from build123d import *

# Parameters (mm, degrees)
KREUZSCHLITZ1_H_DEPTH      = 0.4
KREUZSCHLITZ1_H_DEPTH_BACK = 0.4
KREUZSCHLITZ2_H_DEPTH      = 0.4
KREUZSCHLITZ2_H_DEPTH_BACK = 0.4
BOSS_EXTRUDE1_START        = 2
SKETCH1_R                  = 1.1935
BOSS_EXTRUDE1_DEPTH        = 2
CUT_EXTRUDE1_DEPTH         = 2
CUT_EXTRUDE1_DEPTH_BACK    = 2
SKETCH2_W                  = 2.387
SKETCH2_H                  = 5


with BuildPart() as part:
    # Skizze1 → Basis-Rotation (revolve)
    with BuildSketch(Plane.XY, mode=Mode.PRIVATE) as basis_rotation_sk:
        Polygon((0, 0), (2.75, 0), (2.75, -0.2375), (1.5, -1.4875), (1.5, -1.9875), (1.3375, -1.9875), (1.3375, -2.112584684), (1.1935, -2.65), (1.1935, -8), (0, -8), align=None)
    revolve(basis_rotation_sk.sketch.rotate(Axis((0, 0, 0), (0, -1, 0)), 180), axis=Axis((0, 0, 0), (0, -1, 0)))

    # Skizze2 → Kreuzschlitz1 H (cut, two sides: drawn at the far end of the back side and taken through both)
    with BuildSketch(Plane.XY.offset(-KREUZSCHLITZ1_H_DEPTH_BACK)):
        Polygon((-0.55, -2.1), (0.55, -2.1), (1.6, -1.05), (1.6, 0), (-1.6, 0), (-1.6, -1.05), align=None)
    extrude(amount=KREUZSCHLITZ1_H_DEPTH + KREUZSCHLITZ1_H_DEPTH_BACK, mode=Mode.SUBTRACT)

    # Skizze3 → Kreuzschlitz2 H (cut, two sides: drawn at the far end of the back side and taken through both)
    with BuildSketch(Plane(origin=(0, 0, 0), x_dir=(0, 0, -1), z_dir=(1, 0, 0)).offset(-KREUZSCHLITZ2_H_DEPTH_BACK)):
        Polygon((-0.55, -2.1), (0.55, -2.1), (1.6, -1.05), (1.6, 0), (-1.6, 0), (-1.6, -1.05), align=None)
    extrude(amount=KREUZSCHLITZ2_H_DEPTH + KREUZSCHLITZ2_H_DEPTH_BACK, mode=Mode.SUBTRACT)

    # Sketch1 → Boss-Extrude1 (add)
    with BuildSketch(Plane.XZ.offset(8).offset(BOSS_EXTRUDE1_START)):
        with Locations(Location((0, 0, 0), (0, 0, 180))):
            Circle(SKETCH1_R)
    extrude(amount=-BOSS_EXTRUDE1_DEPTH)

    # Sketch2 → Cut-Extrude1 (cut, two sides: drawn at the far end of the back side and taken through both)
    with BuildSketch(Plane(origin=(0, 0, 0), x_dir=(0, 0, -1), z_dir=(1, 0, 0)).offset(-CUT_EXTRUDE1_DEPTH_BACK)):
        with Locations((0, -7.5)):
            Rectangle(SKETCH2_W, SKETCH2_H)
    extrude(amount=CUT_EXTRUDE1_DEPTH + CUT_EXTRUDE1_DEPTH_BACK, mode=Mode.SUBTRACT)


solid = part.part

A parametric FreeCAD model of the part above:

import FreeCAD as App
import Part
import Sketcher
Q = App.Units.Quantity

doc = App.newDocument("Part")
body = doc.addObject("PartDesign::Body", "Body")

sketch1 = doc.addObject("Sketcher::SketchObject", "Sketch")
body.addObject(sketch1)
sketch1.AttachmentSupport = (doc.XY_Plane, [""])
sketch1.MapMode = "FlatFace"
sketch1.addGeometry([
    Part.LineSegment(App.Vector(2.75, 0, 0), App.Vector(0, 0, 0)),
    Part.LineSegment(App.Vector(0, 0, 0), App.Vector(0, -8, 0)),
    Part.LineSegment(App.Vector(0, -8, 0), App.Vector(1.19, -8, 0)),
    Part.LineSegment(App.Vector(1.19, -8, 0), App.Vector(1.19, -2.65, 0)),
    Part.LineSegment(App.Vector(1.19, -2.65, 0), App.Vector(1.34, -2.11, 0)),
    Part.LineSegment(App.Vector(1.34, -2.11, 0), App.Vector(1.34, -1.99, 0)),
    Part.LineSegment(App.Vector(1.34, -1.99, 0), App.Vector(1.5, -1.99, 0)),
    Part.LineSegment(App.Vector(1.5, -1.99, 0), App.Vector(1.5, -1.49, 0)),
    Part.LineSegment(App.Vector(1.5, -1.49, 0), App.Vector(2.75, -0.24, 0)),
    Part.LineSegment(App.Vector(2.75, -0.24, 0), App.Vector(2.75, 0, 0)),
], False)
sketch1.addConstraint([
    Sketcher.Constraint("Coincident", 0, 2, 1, 1),
    Sketcher.Constraint("Coincident", 1, 2, 2, 1),
    Sketcher.Constraint("Coincident", 2, 2, 3, 1),
    Sketcher.Constraint("Coincident", 3, 2, 4, 1),
    Sketcher.Constraint("Coincident", 4, 2, 5, 1),
    Sketcher.Constraint("Coincident", 5, 2, 6, 1),
    Sketcher.Constraint("Coincident", 6, 2, 7, 1),
    Sketcher.Constraint("Coincident", 7, 2, 8, 1),
    Sketcher.Constraint("Coincident", 8, 2, 9, 1),
    Sketcher.Constraint("Coincident", 9, 2, 0, 1),
    Sketcher.Constraint("Horizontal", 0),
    Sketcher.Constraint("Vertical", 1),
    Sketcher.Constraint("Horizontal", 2),
    Sketcher.Constraint("Vertical", 3),
    Sketcher.Constraint("Vertical", 5),
    Sketcher.Constraint("Horizontal", 6),
    Sketcher.Constraint("Vertical", 7),
    Sketcher.Constraint("Vertical", 9),
    Sketcher.Constraint("Coincident", 0, 2, -1, 1),
    Sketcher.Constraint("DistanceY", 1, 2, 1, 1, Q("8 mm")),
    Sketcher.Constraint("Angle", 4, Q("75 deg")),
    Sketcher.Constraint("Angle", 8, Q("45 deg")),
    Sketcher.Constraint("DistanceY", 7, 1, 7, 2, Q("0.5 mm")),
    Sketcher.Constraint("DistanceX", 0, 2, 0, 1, Q("2.75 mm")),
    Sketcher.Constraint("DistanceY", 3, 1, 3, 2, Q("5.35 mm")),
    Sketcher.Constraint("DistanceX", -1, 1, 6, 2, Q("1.5 mm")),
    Sketcher.Constraint("DistanceX", 2, 1, 2, 2, Q("1.1935 mm")),
    Sketcher.Constraint("DistanceX", 6, 1, 6, 2, Q("0.1625 mm")),
    Sketcher.Constraint("DistanceY", 9, 1, 9, 2, Q("0.2375 mm")),
])
revolution = doc.addObject("PartDesign::Revolution", "Revolution")
body.addObject(revolution)
revolution.Profile = sketch1
revolution.ReferenceAxis = (sketch1, ["V_Axis"])
revolution.Angle = 360

sketch2 = doc.addObject("Sketcher::SketchObject", "Sketch001")
body.addObject(sketch2)
sketch2.AttachmentSupport = (doc.XY_Plane, [""])
sketch2.MapMode = "FlatFace"
sketch2.addGeometry([
    Part.LineSegment(App.Vector(-0.6, -2.1, 0), App.Vector(0.6, -2.1, 0)),
    Part.LineSegment(App.Vector(0.6, -2.1, 0), App.Vector(1.6, -1.1, 0)),
    Part.LineSegment(App.Vector(1.6, -1.1, 0), App.Vector(1.6, 0, 0)),
    Part.LineSegment(App.Vector(1.6, 0, 0), App.Vector(-1.6, 0, 0)),
    Part.LineSegment(App.Vector(-1.6, 0, 0), App.Vector(-1.6, -1.1, 0)),
    Part.LineSegment(App.Vector(-1.6, -1.1, 0), App.Vector(-0.6, -2.1, 0)),
], False)
sketch2.addConstraint([
    Sketcher.Constraint("Coincident", 0, 2, 1, 1),
    Sketcher.Constraint("Coincident", 1, 2, 2, 1),
    Sketcher.Constraint("Coincident", 2, 2, 3, 1),
    Sketcher.Constraint("Coincident", 3, 2, 4, 1),
    Sketcher.Constraint("Coincident", 4, 2, 5, 1),
    Sketcher.Constraint("Coincident", 5, 2, 0, 1),
    Sketcher.Constraint("Horizontal", 0),
    Sketcher.Constraint("Vertical", 2),
    Sketcher.Constraint("Horizontal", 3),
    Sketcher.Constraint("Vertical", 4),
    Sketcher.Constraint("Symmetric", 2, 2, 3, 2, -1, 1),
    Sketcher.Constraint("Perpendicular", 1, 5),
    Sketcher.Constraint("Horizontal", 1, 2, 4, 2),
    Sketcher.Constraint("Equal", 1, 5),
    Sketcher.Constraint("DistanceX", 0, 1, 0, 2, Q("1.1 mm")),
    Sketcher.Constraint("DistanceX", 3, 2, 3, 1, Q("3.2 mm")),
    Sketcher.Constraint("DistanceY", 2, 1, 2, 2, Q("1.05 mm")),
])
pocket1 = doc.addObject("PartDesign::Pocket", "Pocket")
body.addObject(pocket1)
pocket1.Profile = sketch2
pocket1.Type = "TwoLengths"
pocket1.Length = 0.4
pocket1.Length2 = 0.4
pocket1.Reversed = True

sketch3 = doc.addObject("Sketcher::SketchObject", "Sketch002")
body.addObject(sketch3)
sketch3.AttachmentSupport = (doc.YZ_Plane, [""])
sketch3.MapMode = "FlatFace"
sketch3.addGeometry([
    Part.LineSegment(App.Vector(-2.1, 0.6, 0), App.Vector(-2.1, -0.6, 0)),
    Part.LineSegment(App.Vector(-2.1, -0.6, 0), App.Vector(-1.1, -1.6, 0)),
    Part.LineSegment(App.Vector(-1.1, -1.6, 0), App.Vector(0, -1.6, 0)),
    Part.LineSegment(App.Vector(0, -1.6, 0), App.Vector(0, 1.6, 0)),
    Part.LineSegment(App.Vector(0, 1.6, 0), App.Vector(-1.1, 1.6, 0)),
    Part.LineSegment(App.Vector(-1.1, 1.6, 0), App.Vector(-2.1, 0.6, 0)),
], False)
sketch3.addConstraint([
    Sketcher.Constraint("Coincident", 0, 2, 1, 1),
    Sketcher.Constraint("Coincident", 1, 2, 2, 1),
    Sketcher.Constraint("Coincident", 2, 2, 3, 1),
    Sketcher.Constraint("Coincident", 3, 2, 4, 1),
    Sketcher.Constraint("Coincident", 4, 2, 5, 1),
    Sketcher.Constraint("Coincident", 5, 2, 0, 1),
    Sketcher.Constraint("Vertical", 0),
    Sketcher.Constraint("Horizontal", 2),
    Sketcher.Constraint("Vertical", 3),
    Sketcher.Constraint("Horizontal", 4),
    Sketcher.Constraint("Symmetric", 2, 2, 3, 2, -1, 1),
    Sketcher.Constraint("Perpendicular", 1, 5),
    Sketcher.Constraint("Vertical", 1, 2, 4, 2),
    Sketcher.Constraint("Equal", 1, 5),
    Sketcher.Constraint("DistanceY", 0, 2, 0, 1, Q("1.1 mm")),
    Sketcher.Constraint("DistanceY", 3, 1, 3, 2, Q("3.2 mm")),
    Sketcher.Constraint("DistanceX", 2, 1, 2, 2, Q("1.05 mm")),
])
pocket2 = doc.addObject("PartDesign::Pocket", "Pocket001")
body.addObject(pocket2)
pocket2.Profile = sketch3
pocket2.Type = "TwoLengths"
pocket2.Length = 0.4
pocket2.Length2 = 0.4
pocket2.Reversed = True

sketch4 = doc.addObject("Sketcher::SketchObject", "Sketch003")
body.addObject(sketch4)
sketch4.AttachmentSupport = (doc.XZ_Plane, [""])
sketch4.MapMode = "FlatFace"
sketch4.AttachmentOffset = App.Placement(App.Vector(0, 0, 10), App.Rotation())
sketch4.addGeometry(Part.Circle(App.Vector(0, 0, 0), App.Vector(0, 0, 1), 1.2), False)
sketch4.addConstraint([
    Sketcher.Constraint("Coincident", 0, 3, -1, 1),
    Sketcher.Constraint("Diameter", 0, Q("2.387 mm")),
])
pad1 = doc.addObject("PartDesign::Pad", "Pad")
body.addObject(pad1)
pad1.Profile = sketch4
pad1.Length = 2
pad1.Reversed = True

sketch5 = doc.addObject("Sketcher::SketchObject", "Sketch004")
body.addObject(sketch5)
sketch5.AttachmentSupport = (doc.YZ_Plane, [""])
sketch5.MapMode = "FlatFace"
sketch5.addGeometry([
    Part.LineSegment(App.Vector(-5, 1.2, 0), App.Vector(-10, 1.2, 0)),
    Part.LineSegment(App.Vector(-10, 1.2, 0), App.Vector(-10, -1.2, 0)),
    Part.LineSegment(App.Vector(-10, -1.2, 0), App.Vector(-5, -1.2, 0)),
    Part.LineSegment(App.Vector(-5, -1.2, 0), App.Vector(-5, 1.2, 0)),
], False)
sketch5.addConstraint([
    Sketcher.Constraint("Coincident", 0, 2, 1, 1),
    Sketcher.Constraint("Coincident", 1, 2, 2, 1),
    Sketcher.Constraint("Coincident", 2, 2, 3, 1),
    Sketcher.Constraint("Coincident", 3, 2, 0, 1),
    Sketcher.Constraint("Horizontal", 0),
    Sketcher.Constraint("Vertical", 1),
    Sketcher.Constraint("Horizontal", 2),
    Sketcher.Constraint("Vertical", 3),
    Sketcher.Constraint("DistanceX", 0, 2, 0, 1, Q("5 mm")),
    Sketcher.Constraint("DistanceX", 0, 2, -1, 1, Q("10 mm")),
    Sketcher.Constraint("DistanceY", 1, 2, 1, 1, Q("2.387 mm")),
    Sketcher.Constraint("DistanceY", -1, 1, 0, 2, Q("1.1935 mm")),
])
pocket3 = doc.addObject("PartDesign::Pocket", "Pocket002")
body.addObject(pocket3)
pocket3.Profile = sketch5
pocket3.Type = "ThroughAll"
pocket3.Midplane = True

doc.recompute()
